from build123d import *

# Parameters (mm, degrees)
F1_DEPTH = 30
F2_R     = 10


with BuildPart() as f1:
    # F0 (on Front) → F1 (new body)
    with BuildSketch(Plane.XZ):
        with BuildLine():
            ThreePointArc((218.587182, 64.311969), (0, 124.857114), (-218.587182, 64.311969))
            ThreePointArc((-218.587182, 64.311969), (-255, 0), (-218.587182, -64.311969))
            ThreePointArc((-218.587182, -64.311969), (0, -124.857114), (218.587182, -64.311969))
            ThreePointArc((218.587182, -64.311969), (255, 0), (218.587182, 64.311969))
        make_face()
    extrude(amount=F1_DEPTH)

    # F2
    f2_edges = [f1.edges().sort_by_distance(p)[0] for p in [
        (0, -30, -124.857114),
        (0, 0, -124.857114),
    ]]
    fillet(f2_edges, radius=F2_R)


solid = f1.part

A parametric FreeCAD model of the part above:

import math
import FreeCAD as App
import Part
import Sketcher

V = App.Vector
Q = App.Units.Quantity


def edges_at(feature, points):
    """Names of the edges that pass closest to the given points."""
    edges = feature.Shape.Edges
    near = lambda p: min(range(len(edges)), key=lambda i: edges[i].distToShape(Part.Vertex(*p))[0])
    return sorted({f"Edge{near(p) + 1}" for p in points})

doc = App.newDocument("Part")
params = doc.addObject("Spreadsheet::Sheet", "Params")
for row, (alias, value) in enumerate([
    ("sketch1_radius", "75 mm"),
    ("pad1_length", "30 mm"),
    ("fillet_radius", "10 mm"),
], start=1):
    params.set(f"A{row}", alias)
    params.set(f"B{row}", "=" + value)
    params.setAlias(f"B{row}", alias)

body = doc.addObject("PartDesign::Body", "Body")

# Sketch on XZ plane
sketch1 = body.newObject("Sketcher::SketchObject", "Sketch")
sketch1.AttachmentSupport = (doc.getObject("XZ_Plane"), [""])
sketch1.MapMode = "FlatFace"
sketch1.addGeometry([
    Part.ArcOfCircle(Part.Circle(V(0, -300, 0), V(0, 0, 1), 425), math.radians(59), math.radians(121)),
    Part.ArcOfCircle(Part.Circle(V(-180, 0, 0), V(0, 0, 1), 75), math.radians(121), math.radians(239)),
    Part.ArcOfCircle(Part.Circle(V(0, 300, 0), V(0, 0, 1), 425), math.radians(-121), math.radians(-59)),
    Part.ArcOfCircle(Part.Circle(V(180, 0, 0), V(0, 0, 1), 75), math.radians(-59), math.radians(59)),
], False)
sketch1.addConstraint([
    Sketcher.Constraint("Tangent", 0, 2, 1, 1),
    Sketcher.Constraint("Tangent", 1, 2, 2, 1),
    Sketcher.Constraint("Tangent", 2, 2, 3, 1),
    Sketcher.Constraint("Tangent", 3, 2, 0, 1),
    Sketcher.Constraint("Equal", 0, 2),
    Sketcher.Constraint("Equal", 1, 3),
    Sketcher.Constraint("Symmetric", 0, 3, 2, 3, -1, 1),
    Sketcher.Constraint("PointOnObject", 0, 3, -2),
    Sketcher.Constraint("Radius", 1, Q("75 mm")),
    Sketcher.Constraint("DistanceX", 1, 3, -1, 1, Q("180 mm")),
    Sketcher.Constraint("Radius", 0, Q("424.85711 mm")),
])
sketch1.setExpression("Constraints[8]", "Params.sketch1_radius")
pad1 = body.newObject("PartDesign::Pad", "Pad")
pad1.Profile = sketch1
pad1.setExpression("Length", "Params.pad1_length")
doc.recompute()

fillet = body.newObject("PartDesign::Fillet", "Fillet")
fillet.Base = (pad1, edges_at(pad1, [(0, -30, -124.857), (0, 0, -124.857)]))
fillet.setExpression("Radius", "Params.fillet_radius")

doc.recompute()
